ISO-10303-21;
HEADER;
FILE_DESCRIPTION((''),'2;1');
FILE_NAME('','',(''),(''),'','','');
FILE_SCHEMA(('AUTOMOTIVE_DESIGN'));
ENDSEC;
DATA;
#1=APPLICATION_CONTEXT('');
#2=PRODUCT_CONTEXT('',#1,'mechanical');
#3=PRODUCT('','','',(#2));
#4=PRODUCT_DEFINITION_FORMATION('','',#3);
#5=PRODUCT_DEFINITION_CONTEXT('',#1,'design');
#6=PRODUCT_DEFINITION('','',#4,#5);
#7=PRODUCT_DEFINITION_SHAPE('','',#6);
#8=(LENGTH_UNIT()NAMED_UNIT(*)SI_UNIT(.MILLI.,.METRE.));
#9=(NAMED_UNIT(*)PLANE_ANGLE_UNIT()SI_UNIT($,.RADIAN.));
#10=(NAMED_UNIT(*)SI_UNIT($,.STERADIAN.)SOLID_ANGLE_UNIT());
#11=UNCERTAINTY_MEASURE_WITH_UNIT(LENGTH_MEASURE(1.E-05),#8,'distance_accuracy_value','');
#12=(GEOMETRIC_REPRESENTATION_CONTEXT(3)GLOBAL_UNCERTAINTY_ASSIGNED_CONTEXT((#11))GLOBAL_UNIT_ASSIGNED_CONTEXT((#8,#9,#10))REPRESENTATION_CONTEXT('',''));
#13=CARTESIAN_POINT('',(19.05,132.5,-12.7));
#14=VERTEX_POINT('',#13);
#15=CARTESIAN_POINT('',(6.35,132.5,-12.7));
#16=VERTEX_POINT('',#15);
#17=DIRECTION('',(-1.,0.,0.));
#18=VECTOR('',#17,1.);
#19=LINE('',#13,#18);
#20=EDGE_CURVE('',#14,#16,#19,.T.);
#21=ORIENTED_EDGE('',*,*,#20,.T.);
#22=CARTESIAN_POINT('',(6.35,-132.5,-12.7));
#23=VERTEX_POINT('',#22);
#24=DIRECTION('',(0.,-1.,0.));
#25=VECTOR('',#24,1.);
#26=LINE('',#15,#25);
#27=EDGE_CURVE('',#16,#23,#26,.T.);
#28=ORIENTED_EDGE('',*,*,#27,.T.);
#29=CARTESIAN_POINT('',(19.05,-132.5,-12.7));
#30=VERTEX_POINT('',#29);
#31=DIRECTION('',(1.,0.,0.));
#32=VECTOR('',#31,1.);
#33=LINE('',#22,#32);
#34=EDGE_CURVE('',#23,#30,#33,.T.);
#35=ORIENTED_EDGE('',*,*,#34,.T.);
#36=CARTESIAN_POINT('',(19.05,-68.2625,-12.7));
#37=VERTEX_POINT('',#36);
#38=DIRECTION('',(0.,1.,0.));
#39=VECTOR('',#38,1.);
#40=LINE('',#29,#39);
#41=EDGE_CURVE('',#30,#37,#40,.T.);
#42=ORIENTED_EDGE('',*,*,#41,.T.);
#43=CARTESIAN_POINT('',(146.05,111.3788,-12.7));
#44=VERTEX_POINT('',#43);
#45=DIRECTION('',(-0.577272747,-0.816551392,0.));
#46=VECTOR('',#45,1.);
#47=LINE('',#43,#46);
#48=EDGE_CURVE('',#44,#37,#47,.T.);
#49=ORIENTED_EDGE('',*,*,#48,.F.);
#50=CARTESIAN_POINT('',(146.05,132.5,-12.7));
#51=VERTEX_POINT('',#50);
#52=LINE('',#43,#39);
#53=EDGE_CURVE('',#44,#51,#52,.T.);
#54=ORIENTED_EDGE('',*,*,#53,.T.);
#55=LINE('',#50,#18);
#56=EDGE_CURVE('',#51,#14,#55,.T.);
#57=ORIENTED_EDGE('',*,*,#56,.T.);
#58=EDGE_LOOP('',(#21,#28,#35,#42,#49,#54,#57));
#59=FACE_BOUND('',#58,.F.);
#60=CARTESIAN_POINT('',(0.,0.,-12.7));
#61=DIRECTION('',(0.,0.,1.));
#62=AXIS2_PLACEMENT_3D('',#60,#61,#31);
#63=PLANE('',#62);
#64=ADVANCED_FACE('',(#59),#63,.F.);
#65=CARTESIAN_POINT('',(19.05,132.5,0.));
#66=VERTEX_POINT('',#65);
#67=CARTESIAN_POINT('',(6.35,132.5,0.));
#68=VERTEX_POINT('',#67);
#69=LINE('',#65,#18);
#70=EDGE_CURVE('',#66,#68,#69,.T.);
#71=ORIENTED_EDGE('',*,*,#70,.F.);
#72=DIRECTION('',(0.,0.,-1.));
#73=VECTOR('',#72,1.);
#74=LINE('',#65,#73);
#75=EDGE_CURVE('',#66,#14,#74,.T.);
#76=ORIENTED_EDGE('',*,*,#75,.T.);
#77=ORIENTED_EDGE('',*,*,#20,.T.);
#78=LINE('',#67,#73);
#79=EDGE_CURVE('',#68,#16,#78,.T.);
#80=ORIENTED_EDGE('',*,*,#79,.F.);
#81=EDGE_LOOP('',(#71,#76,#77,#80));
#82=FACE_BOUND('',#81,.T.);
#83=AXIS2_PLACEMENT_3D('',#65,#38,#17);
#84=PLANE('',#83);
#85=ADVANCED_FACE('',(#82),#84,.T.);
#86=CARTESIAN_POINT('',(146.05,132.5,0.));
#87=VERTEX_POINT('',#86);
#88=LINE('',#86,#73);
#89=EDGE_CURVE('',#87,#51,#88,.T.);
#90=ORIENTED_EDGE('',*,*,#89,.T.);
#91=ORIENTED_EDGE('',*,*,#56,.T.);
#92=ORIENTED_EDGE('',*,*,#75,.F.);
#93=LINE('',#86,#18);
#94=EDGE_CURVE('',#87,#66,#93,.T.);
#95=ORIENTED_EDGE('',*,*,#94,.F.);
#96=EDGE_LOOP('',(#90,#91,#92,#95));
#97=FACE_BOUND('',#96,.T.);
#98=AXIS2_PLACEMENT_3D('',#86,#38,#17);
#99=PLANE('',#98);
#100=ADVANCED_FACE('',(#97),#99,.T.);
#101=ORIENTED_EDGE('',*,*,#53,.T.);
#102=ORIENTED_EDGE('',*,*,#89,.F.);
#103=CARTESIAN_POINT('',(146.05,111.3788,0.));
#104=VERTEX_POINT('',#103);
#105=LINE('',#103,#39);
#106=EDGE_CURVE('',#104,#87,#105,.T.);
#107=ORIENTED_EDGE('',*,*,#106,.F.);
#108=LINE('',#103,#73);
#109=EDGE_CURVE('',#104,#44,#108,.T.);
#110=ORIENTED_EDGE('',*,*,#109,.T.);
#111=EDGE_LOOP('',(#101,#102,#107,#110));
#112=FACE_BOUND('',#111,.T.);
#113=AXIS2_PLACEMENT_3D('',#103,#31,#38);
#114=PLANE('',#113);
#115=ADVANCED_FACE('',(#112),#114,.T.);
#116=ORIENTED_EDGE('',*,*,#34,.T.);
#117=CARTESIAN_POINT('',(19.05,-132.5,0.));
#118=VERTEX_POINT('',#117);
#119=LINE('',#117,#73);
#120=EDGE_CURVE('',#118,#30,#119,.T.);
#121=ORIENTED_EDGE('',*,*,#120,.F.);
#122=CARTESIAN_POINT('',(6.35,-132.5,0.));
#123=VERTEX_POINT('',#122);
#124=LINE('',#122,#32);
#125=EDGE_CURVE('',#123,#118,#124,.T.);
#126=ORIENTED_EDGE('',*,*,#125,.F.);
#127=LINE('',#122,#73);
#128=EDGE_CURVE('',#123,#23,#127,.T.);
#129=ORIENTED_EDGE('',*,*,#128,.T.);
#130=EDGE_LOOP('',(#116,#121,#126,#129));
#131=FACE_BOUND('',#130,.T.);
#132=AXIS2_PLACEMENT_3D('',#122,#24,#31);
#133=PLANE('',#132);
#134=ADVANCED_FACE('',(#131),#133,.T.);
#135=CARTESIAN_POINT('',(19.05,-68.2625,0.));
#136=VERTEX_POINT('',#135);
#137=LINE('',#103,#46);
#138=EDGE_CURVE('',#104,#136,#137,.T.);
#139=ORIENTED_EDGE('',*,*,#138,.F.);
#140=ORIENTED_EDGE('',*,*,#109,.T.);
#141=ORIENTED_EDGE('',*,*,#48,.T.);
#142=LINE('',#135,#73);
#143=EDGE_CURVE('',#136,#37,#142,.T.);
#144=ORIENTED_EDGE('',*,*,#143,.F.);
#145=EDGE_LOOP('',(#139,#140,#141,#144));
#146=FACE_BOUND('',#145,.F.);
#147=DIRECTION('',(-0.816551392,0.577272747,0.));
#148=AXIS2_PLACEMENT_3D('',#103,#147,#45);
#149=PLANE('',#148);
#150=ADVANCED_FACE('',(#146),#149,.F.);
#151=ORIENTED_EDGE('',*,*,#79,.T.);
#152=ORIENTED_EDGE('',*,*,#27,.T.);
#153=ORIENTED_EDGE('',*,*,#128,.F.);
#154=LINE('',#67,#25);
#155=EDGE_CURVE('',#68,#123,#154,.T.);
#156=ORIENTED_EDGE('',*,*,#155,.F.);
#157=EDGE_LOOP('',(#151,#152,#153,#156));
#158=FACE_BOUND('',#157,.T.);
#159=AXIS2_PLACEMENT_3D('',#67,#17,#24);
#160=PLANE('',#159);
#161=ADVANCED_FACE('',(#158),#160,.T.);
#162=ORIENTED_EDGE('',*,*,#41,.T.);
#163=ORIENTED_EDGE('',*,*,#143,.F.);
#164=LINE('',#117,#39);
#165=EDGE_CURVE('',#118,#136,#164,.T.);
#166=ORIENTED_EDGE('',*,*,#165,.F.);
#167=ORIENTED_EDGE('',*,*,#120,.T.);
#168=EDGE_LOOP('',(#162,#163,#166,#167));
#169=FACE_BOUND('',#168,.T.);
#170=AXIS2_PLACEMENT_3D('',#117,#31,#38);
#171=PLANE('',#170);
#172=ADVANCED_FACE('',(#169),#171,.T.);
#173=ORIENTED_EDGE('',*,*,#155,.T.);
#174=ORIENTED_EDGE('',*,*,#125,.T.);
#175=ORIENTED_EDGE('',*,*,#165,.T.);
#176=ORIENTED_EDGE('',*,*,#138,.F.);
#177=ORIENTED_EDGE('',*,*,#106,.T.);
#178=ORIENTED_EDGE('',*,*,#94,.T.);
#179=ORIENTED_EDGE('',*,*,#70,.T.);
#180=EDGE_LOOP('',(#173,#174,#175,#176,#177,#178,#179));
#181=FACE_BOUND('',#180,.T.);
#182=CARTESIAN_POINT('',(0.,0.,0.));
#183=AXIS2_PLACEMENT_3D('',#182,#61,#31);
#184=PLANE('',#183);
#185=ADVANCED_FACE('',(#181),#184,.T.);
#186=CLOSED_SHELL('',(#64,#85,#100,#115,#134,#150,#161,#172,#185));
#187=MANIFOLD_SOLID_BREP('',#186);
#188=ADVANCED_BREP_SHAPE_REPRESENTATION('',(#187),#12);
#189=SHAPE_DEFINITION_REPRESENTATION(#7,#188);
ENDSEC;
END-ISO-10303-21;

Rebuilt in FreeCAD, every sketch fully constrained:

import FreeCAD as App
import Part
import Sketcher
from FreeCAD import Vector
Q = App.Units.Quantity

doc = App.newDocument("Part")
body = doc.addObject("PartDesign::Body", "Body")

# Sketch on XY plane
sketch1 = body.newObject("Sketcher::SketchObject", "Sketch")
sketch1.AttachmentSupport = (doc.getObject("XY_Plane"), [""])
sketch1.MapMode = "FlatFace"
sketch1.addGeometry(Part.LineSegment(Vector(6, 132, 0), Vector(6, -132, 0)), False)
sketch1.addGeometry(Part.LineSegment(Vector(6, -132, 0), Vector(19, -132, 0)), False)
sketch1.addGeometry(Part.LineSegment(Vector(19, -132, 0), Vector(19, -68, 0)), False)
sketch1.addGeometry(Part.LineSegment(Vector(19, -68, 0), Vector(146, 111, 0)), False)
sketch1.addGeometry(Part.LineSegment(Vector(146, 111, 0), Vector(146, 132, 0)), False)
sketch1.addGeometry(Part.LineSegment(Vector(146, 132, 0), Vector(6, 132, 0)), False)
sketch1.addConstraint(Sketcher.Constraint("Coincident", 0, 2, 1, 1))
sketch1.addConstraint(Sketcher.Constraint("Coincident", 1, 2, 2, 1))
sketch1.addConstraint(Sketcher.Constraint("Coincident", 2, 2, 3, 1))
sketch1.addConstraint(Sketcher.Constraint("Coincident", 3, 2, 4, 1))
sketch1.addConstraint(Sketcher.Constraint("Coincident", 4, 2, 5, 1))
sketch1.addConstraint(Sketcher.Constraint("Coincident", 5, 2, 0, 1))
sketch1.addConstraint(Sketcher.Constraint("Vertical", 0))
sketch1.addConstraint(Sketcher.Constraint("Horizontal", 1))
sketch1.addConstraint(Sketcher.Constraint("Vertical", 2))
sketch1.addConstraint(Sketcher.Constraint("Vertical", 4))
sketch1.addConstraint(Sketcher.Constraint("Horizontal", 5))
sketch1.addConstraint(Sketcher.Constraint("DistanceY", 0, 2, 0, 1, Q("265 mm")))
sketch1.addConstraint(Sketcher.Constraint("Distance", 3, Q("220 mm")))
sketch1.addConstraint(Sketcher.Constraint("DistanceX", 1, 1, 1, 2, Q("12.7 mm")))
sketch1.addConstraint(Sketcher.Constraint("DistanceX", 5, 2, 5, 1, Q("139.7 mm")))
sketch1.addConstraint(Sketcher.Constraint("DistanceY", 0, 2, -1, 1, Q("132.5 mm")))
sketch1.addConstraint(Sketcher.Constraint("DistanceX", -1, 1, 0, 2, Q("6.35 mm")))
sketch1.addConstraint(Sketcher.Constraint("DistanceY", 2, 1, 2, 2, Q("64.2375 mm")))
pad1 = body.newObject("PartDesign::Pad", "Pad")
pad1.Profile = sketch1
pad1.Length = 12.7
pad1.Reversed = True

doc.recompute()
